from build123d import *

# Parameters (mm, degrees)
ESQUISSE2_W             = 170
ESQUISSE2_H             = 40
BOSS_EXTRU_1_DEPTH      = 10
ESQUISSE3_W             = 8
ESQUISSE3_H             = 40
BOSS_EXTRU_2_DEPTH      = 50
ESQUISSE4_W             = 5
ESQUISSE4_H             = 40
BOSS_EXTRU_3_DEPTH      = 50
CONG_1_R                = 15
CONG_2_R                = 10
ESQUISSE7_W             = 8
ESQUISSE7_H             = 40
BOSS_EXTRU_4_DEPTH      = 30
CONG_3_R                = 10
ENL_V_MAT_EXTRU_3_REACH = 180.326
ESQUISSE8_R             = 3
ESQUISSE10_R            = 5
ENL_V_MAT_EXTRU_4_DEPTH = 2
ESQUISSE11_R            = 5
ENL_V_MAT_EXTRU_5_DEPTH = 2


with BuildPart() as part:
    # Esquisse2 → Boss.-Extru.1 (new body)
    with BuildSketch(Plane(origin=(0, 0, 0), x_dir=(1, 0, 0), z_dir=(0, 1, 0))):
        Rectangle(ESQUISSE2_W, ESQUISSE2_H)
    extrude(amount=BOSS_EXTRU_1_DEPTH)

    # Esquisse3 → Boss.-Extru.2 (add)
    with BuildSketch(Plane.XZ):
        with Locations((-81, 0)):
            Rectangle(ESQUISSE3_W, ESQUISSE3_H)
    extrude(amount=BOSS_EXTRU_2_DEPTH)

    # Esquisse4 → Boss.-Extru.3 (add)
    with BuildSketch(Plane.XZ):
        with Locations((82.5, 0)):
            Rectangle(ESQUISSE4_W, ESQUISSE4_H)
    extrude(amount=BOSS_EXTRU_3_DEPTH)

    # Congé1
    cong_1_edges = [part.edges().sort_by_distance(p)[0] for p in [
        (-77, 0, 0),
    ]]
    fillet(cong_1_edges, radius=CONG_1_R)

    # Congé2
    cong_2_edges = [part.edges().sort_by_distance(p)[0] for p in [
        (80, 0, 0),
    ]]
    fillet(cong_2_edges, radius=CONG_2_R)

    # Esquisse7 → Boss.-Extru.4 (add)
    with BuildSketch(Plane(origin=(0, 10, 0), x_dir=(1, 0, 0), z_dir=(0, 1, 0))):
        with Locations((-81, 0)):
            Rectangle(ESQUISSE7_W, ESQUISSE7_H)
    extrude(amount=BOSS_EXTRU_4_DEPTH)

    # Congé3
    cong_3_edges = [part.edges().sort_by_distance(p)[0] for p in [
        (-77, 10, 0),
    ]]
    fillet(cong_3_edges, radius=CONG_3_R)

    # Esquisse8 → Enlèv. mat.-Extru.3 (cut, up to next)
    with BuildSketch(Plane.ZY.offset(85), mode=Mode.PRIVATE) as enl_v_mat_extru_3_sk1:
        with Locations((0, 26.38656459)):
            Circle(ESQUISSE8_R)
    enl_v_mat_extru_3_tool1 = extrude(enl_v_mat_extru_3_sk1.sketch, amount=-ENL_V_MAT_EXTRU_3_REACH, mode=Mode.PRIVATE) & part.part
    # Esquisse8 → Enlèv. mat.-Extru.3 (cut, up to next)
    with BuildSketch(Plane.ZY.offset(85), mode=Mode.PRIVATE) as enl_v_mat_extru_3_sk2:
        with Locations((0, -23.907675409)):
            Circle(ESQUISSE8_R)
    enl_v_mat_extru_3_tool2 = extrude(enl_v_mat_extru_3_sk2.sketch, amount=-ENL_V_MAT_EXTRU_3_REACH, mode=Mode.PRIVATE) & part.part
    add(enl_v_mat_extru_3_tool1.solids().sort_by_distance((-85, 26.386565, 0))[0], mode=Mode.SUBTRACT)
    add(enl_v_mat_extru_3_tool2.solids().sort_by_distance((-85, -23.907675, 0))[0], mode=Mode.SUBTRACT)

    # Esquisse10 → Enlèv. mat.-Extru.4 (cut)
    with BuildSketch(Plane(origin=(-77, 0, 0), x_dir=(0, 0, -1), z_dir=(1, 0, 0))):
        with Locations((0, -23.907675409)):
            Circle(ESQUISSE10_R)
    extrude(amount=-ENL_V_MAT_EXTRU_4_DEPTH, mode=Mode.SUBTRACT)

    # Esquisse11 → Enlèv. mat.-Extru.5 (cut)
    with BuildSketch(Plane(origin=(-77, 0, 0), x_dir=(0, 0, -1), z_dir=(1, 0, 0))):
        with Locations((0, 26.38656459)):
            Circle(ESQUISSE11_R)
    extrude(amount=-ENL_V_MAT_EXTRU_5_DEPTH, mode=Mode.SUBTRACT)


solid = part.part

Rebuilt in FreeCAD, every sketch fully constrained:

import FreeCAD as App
import Part
import Sketcher
from FreeCAD import Vector


def edges_at(feature, points):
    """Names of the edges that pass closest to the given points."""
    edges = feature.Shape.Edges
    near = lambda p: min(range(len(edges)), key=lambda i: edges[i].distToShape(Part.Vertex(*p))[0])
    return sorted({f"Edge{near(p) + 1}" for p in points})


def add_polygon(sketch, points):
    """Adds a closed chain of lines whose ends are joined by coincident constraints."""
    first, n = sketch.GeometryCount, len(points)
    for a, b in zip(points, points[1:] + points[:1]):
        sketch.addGeometry(Part.LineSegment(App.Vector(*a, 0), App.Vector(*b, 0)), False)
    for i in range(n):
        sketch.addConstraint(Sketcher.Constraint("Coincident", first + i, 2, first + (i + 1) % n, 1))

doc = App.newDocument("Part")
body = doc.addObject("PartDesign::Body", "Body")

# Sketch on XZ plane
sketch1 = doc.addObject("Sketcher::SketchObject", "Sketch")
body.addObject(sketch1)
sketch1.AttachmentSupport = (doc.XZ_Plane, [""])
sketch1.MapMode = "FlatFace"
add_polygon(sketch1, [(-85, -20), (-85, 20), (85, 20), (85, -20)])  # lines 0-3
sketch1.addConstraint([
    Sketcher.Constraint("Vertical", 0),
    Sketcher.Constraint("Horizontal", 1),
    Sketcher.Constraint("Vertical", 2),
    Sketcher.Constraint("Horizontal", 3),
    Sketcher.Constraint("Symmetric", 0, 2, 2, 2, -1, 1),
    Sketcher.Constraint("DistanceX", 1, 1, 1, 2, 170.0),
    Sketcher.Constraint("DistanceY", 0, 1, 0, 2, 40.0),
])
pad1 = doc.addObject("PartDesign::Pad", "Pad")
body.addObject(pad1)
pad1.Profile = sketch1
pad1.Length = 10
pad1.Reversed = True

# Sketch on XZ plane
sketch2 = doc.addObject("Sketcher::SketchObject", "Sketch001")
body.addObject(sketch2)
sketch2.AttachmentSupport = (doc.XZ_Plane, [""])
sketch2.MapMode = "FlatFace"
add_polygon(sketch2, [(-85, 20), (-85, -20), (-77, -20), (-77, 20)])  # lines 0-3
sketch2.addConstraint([
    Sketcher.Constraint("Vertical", 0),
    Sketcher.Constraint("Horizontal", 1),
    Sketcher.Constraint("Vertical", 2),
    Sketcher.Constraint("Horizontal", 3),
    Sketcher.Constraint("DistanceX", 1, 1, 1, 2, 8.0),
    Sketcher.Constraint("DistanceY", 0, 2, 0, 1, 40.0),
    Sketcher.Constraint("DistanceX", 0, 2, -1, 1, 85.0),
    Sketcher.Constraint("DistanceY", 0, 2, -1, 1, 20.0),
])
pad2 = doc.addObject("PartDesign::Pad", "Pad001")
body.addObject(pad2)
pad2.Profile = sketch2
pad2.Length = 50

# Sketch on XZ plane
sketch3 = doc.addObject("Sketcher::SketchObject", "Sketch002")
body.addObject(sketch3)
sketch3.AttachmentSupport = (doc.XZ_Plane, [""])
sketch3.MapMode = "FlatFace"
add_polygon(sketch3, [(80, 20), (80, -20), (85, -20), (85, 20)])  # lines 0-3
sketch3.addConstraint([
    Sketcher.Constraint("Vertical", 0),
    Sketcher.Constraint("Horizontal", 1),
    Sketcher.Constraint("Vertical", 2),
    Sketcher.Constraint("Horizontal", 3),
    Sketcher.Constraint("DistanceX", 1, 1, 1, 2, 5.0),
    Sketcher.Constraint("DistanceY", 0, 2, 0, 1, 40.0),
    Sketcher.Constraint("DistanceX", -1, 1, 0, 2, 80.0),
    Sketcher.Constraint("DistanceY", 0, 2, -1, 1, 20.0),
])
pad3 = doc.addObject("PartDesign::Pad", "Pad002")
body.addObject(pad3)
pad3.Profile = sketch3
pad3.Length = 50
doc.recompute()

fillet = doc.addObject("PartDesign::Fillet", "Fillet")
body.addObject(fillet)
fillet.Base = (pad3, edges_at(pad3, [(-77, 0, 0)]))
fillet.Radius = 15
doc.recompute()

fillet2 = doc.addObject("PartDesign::Fillet", "Fillet001")
body.addObject(fillet2)
fillet2.Base = (fillet, edges_at(fillet, [(80, 0, 0)]))
fillet2.Radius = 10

# Sketch on XZ plane
sketch4 = doc.addObject("Sketcher::SketchObject", "Sketch003")
body.addObject(sketch4)
sketch4.AttachmentSupport = (doc.XZ_Plane, [""])
sketch4.MapMode = "FlatFace"
sketch4.AttachmentOffset = App.Placement(Vector(0, 0, -10), App.Rotation())
add_polygon(sketch4, [(-85, -20), (-85, 20), (-77, 20), (-77, -20)])  # lines 0-3
sketch4.addConstraint([
    Sketcher.Constraint("Vertical", 0),
    Sketcher.Constraint("Horizontal", 1),
    Sketcher.Constraint("Vertical", 2),
    Sketcher.Constraint("Horizontal", 3),
    Sketcher.Constraint("DistanceX", 1, 1, 1, 2, 8.0),
    Sketcher.Constraint("DistanceY", 0, 1, 0, 2, 40.0),
    Sketcher.Constraint("DistanceX", 0, 2, -1, 1, 85.0),
    Sketcher.Constraint("DistanceY", -1, 1, 0, 2, 20.0),
])
pad4 = doc.addObject("PartDesign::Pad", "Pad003")
body.addObject(pad4)
pad4.Profile = sketch4
pad4.Length = 30
pad4.Reversed = True
doc.recompute()

fillet3 = doc.addObject("PartDesign::Fillet", "Fillet002")
body.addObject(fillet3)
fillet3.Base = (pad4, edges_at(pad4, [(-77, 10, 0)]))
fillet3.Radius = 10

# Sketch on YZ plane
sketch5 = doc.addObject("Sketcher::SketchObject", "Sketch004")
body.addObject(sketch5)
sketch5.AttachmentSupport = (doc.YZ_Plane, [""])
sketch5.MapMode = "FlatFace"
sketch5.AttachmentOffset = App.Placement(Vector(0, 0, -85), App.Rotation())
sketch5.addGeometry(Part.Circle(Vector(26.4, 0, 0), Vector(0, 0, 1), 3), False)
sketch5.addConstraint([
    Sketcher.Constraint("PointOnObject", 0, 3, -1),
    Sketcher.Constraint("Diameter", 0, 6.0),
    Sketcher.Constraint("DistanceX", -1, 1, 0, 3, 26.386565),
])
pocket1 = doc.addObject("PartDesign::Pocket", "Pocket")
body.addObject(pocket1)
pocket1.Profile = sketch5
pocket1.Type = "UpToFirst"
pocket1.Reversed = True

# Sketch on YZ plane
sketch6 = doc.addObject("Sketcher::SketchObject", "Sketch005")
body.addObject(sketch6)
sketch6.AttachmentSupport = (doc.YZ_Plane, [""])
sketch6.MapMode = "FlatFace"
sketch6.AttachmentOffset = App.Placement(Vector(0, 0, -85), App.Rotation())
sketch6.addGeometry(Part.Circle(Vector(-23.9, 0, 0), Vector(0, 0, 1), 3), False)
sketch6.addConstraint([
    Sketcher.Constraint("PointOnObject", 0, 3, -1),
    Sketcher.Constraint("Diameter", 0, 6.0),
    Sketcher.Constraint("DistanceX", 0, 3, -1, 1, 23.907675),
])
pocket2 = doc.addObject("PartDesign::Pocket", "Pocket001")
body.addObject(pocket2)
pocket2.Profile = sketch6
pocket2.Type = "UpToFirst"
pocket2.Reversed = True

# Sketch on YZ plane
sketch7 = doc.addObject("Sketcher::SketchObject", "Sketch006")
body.addObject(sketch7)
sketch7.AttachmentSupport = (doc.YZ_Plane, [""])
sketch7.MapMode = "FlatFace"
sketch7.AttachmentOffset = App.Placement(Vector(0, 0, -77), App.Rotation())
sketch7.addGeometry(Part.Circle(Vector(-24, 0, 0), Vector(0, 0, 1), 5), False)
sketch7.addConstraint([
    Sketcher.Constraint("PointOnObject", 0, 3, -1),
    Sketcher.Constraint("Diameter", 0, 10.0),
    Sketcher.Constraint("DistanceX", 0, 3, -1, 1, 23.907675),
])
pocket3 = doc.addObject("PartDesign::Pocket", "Pocket002")
body.addObject(pocket3)
pocket3.Profile = sketch7
pocket3.Length = 2

# Sketch on YZ plane
sketch8 = doc.addObject("Sketcher::SketchObject", "Sketch007")
body.addObject(sketch8)
sketch8.AttachmentSupport = (doc.YZ_Plane, [""])
sketch8.MapMode = "FlatFace"
sketch8.AttachmentOffset = App.Placement(Vector(0, 0, -77), App.Rotation())
sketch8.addGeometry(Part.Circle(Vector(26, 0, 0), Vector(0, 0, 1), 5), False)
sketch8.addConstraint([
    Sketcher.Constraint("PointOnObject", 0, 3, -1),
    Sketcher.Constraint("Diameter", 0, 10.0),
    Sketcher.Constraint("DistanceX", -1, 1, 0, 3, 26.386565),
])
pocket4 = doc.addObject("PartDesign::Pocket", "Pocket003")
body.addObject(pocket4)
pocket4.Profile = sketch8
pocket4.Length = 2

doc.recompute()
